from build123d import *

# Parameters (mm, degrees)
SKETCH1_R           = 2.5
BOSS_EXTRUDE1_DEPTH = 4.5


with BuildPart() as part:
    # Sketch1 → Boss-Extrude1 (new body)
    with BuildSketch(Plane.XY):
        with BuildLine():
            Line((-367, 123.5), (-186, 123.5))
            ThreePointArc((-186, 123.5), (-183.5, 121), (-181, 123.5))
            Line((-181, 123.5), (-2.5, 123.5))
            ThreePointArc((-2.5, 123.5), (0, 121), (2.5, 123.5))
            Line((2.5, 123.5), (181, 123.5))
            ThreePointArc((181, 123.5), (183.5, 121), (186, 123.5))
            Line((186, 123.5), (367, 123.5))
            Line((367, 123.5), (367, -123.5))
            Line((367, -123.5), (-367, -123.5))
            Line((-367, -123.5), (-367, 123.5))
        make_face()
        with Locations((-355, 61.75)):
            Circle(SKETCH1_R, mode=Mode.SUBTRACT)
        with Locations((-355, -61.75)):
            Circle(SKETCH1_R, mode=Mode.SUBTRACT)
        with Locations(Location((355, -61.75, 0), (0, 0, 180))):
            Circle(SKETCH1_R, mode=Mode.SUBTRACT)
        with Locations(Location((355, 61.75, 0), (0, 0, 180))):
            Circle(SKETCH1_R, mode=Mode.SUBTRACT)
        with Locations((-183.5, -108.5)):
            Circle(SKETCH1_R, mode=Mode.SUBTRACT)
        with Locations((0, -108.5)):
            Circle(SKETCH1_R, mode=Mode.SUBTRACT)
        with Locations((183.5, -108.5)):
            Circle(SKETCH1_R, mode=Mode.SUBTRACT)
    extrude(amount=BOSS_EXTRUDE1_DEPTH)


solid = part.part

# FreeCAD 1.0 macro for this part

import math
import FreeCAD as App
import Part
import Sketcher
Q = App.Units.Quantity

doc = App.newDocument("Part")
body = doc.addObject("PartDesign::Body", "Body")

# Sketch on XY plane
sketch1 = body.newObject("Sketcher::SketchObject", "Sketch")
sketch1.AttachmentSupport = (doc.getObject("XY_Plane"), [""])
sketch1.MapMode = "FlatFace"
sketch1.addGeometry([
    Part.LineSegment(App.Vector(-186, 123.5, 0), App.Vector(-367, 123.5, 0)),  # 0
    Part.LineSegment(App.Vector(-367, 123.5, 0), App.Vector(-367, -123.5, 0)),  # 1
    Part.LineSegment(App.Vector(-367, -123.5, 0), App.Vector(367, -123.5, 0)),  # 2
    Part.LineSegment(App.Vector(367, -123.5, 0), App.Vector(367, 123.5, 0)),  # 3
    Part.LineSegment(App.Vector(367, 123.5, 0), App.Vector(186, 123.5, 0)),  # 4
    Part.ArcOfCircle(Part.Circle(App.Vector(183.5, 123.5, 0), App.Vector(0, 0, 1), 2.5), math.radians(180), math.radians(360)),  # 5
    Part.LineSegment(App.Vector(181, 123.5, 0), App.Vector(2.5, 123.5, 0)),  # 6
    Part.ArcOfCircle(Part.Circle(App.Vector(0, 123.5, 0), App.Vector(0, 0, 1), 2.5), math.radians(180), math.radians(360)),  # 7
    Part.LineSegment(App.Vector(-2.5, 123.5, 0), App.Vector(-181, 123.5, 0)),  # 8
    Part.ArcOfCircle(Part.Circle(App.Vector(-183.5, 123.5, 0), App.Vector(0, 0, 1), 2.5), math.radians(180), math.radians(360)),  # 9
    Part.Circle(App.Vector(183.5, -108.5, 0), App.Vector(0, 0, 1), 2.5),  # 10
    Part.Circle(App.Vector(355, -61.8, 0), App.Vector(0, 0, 1), 2.5),  # 11
    Part.Circle(App.Vector(0, -108.5, 0), App.Vector(0, 0, 1), 2.5),  # 12
    Part.Circle(App.Vector(-183.5, -108.5, 0), App.Vector(0, 0, 1), 2.5),  # 13
    Part.Circle(App.Vector(-355, -61.8, 0), App.Vector(0, 0, 1), 2.5),  # 14
    Part.Circle(App.Vector(355, 61.8, 0), App.Vector(0, 0, 1), 2.5),  # 15
    Part.Circle(App.Vector(-355, 61.8, 0), App.Vector(0, 0, 1), 2.5),  # 16
], False)
sketch1.addConstraint([
    Sketcher.Constraint("Coincident", 0, 2, 1, 1),
    Sketcher.Constraint("Coincident", 1, 2, 2, 1),
    Sketcher.Constraint("Coincident", 2, 2, 3, 1),
    Sketcher.Constraint("Coincident", 3, 2, 4, 1),
    Sketcher.Constraint("Coincident", 4, 2, 5, 2),
    Sketcher.Constraint("Coincident", 5, 1, 6, 1),
    Sketcher.Constraint("Coincident", 6, 2, 7, 2),
    Sketcher.Constraint("Coincident", 7, 1, 8, 1),
    Sketcher.Constraint("Coincident", 8, 2, 9, 2),
    Sketcher.Constraint("Coincident", 9, 1, 0, 1),
    Sketcher.Constraint("Horizontal", 0),
    Sketcher.Constraint("Vertical", 1),
    Sketcher.Constraint("Horizontal", 2),
    Sketcher.Constraint("Vertical", 3),
    Sketcher.Constraint("Horizontal", 4),
    Sketcher.Constraint("Horizontal", 6),
    Sketcher.Constraint("Horizontal", 8),
    Sketcher.Constraint("Equal", 5, 7),
    Sketcher.Constraint("Equal", 7, 9),
    Sketcher.Constraint("Equal", 9, 10),
    Sketcher.Constraint("Equal", 10, 11),
    Sketcher.Constraint("Equal", 11, 12),
    Sketcher.Constraint("Equal", 12, 13),
    Sketcher.Constraint("Equal", 13, 14),
    Sketcher.Constraint("Equal", 14, 15),
    Sketcher.Constraint("Equal", 15, 16),
    Sketcher.Constraint("Symmetric", 14, 3, 15, 3, -1, 1),
    Sketcher.Constraint("Symmetric", 11, 3, 16, 3, -1, 1),
    Sketcher.Constraint("Symmetric", 0, 2, 2, 2, -1, 1),
    Sketcher.Constraint("Symmetric", 5, 3, 9, 3, -2),
    Sketcher.Constraint("Symmetric", 10, 3, 13, 3, -2),
    Sketcher.Constraint("Symmetric", 11, 3, 14, 3, -2),
    Sketcher.Constraint("Symmetric", 6, 2, 7, 1, -2),
    Sketcher.Constraint("PointOnObject", 12, 3, -2),
    Sketcher.Constraint("Horizontal", 5, 3, 7, 3),
    Sketcher.Constraint("Horizontal", 10, 3, 12, 3),
    Sketcher.Constraint("Horizontal", 9, 3, 0, 2),
    Sketcher.Constraint("Horizontal", 0, 2, 3, 2),
    Sketcher.Constraint("Horizontal", 4, 2, 5, 1),
    Sketcher.Constraint("Vertical", 5, 3, 10, 3),
    Sketcher.Constraint("Diameter", 10, Q("5 mm")),
    Sketcher.Constraint("DistanceX", 0, 2, 0, 1, Q("181 mm")),
    Sketcher.Constraint("DistanceX", 2, 1, 2, 2, Q("734 mm")),
    Sketcher.Constraint("DistanceY", 1, 2, 1, 1, Q("247 mm")),
    Sketcher.Constraint("DistanceX", -1, 1, 11, 3, Q("355 mm")),
    Sketcher.Constraint("DistanceY", 10, 3, 5, 3, Q("232 mm")),
    Sketcher.Constraint("DistanceY", 11, 3, 15, 3, Q("123.5 mm")),
])
pad1 = body.newObject("PartDesign::Pad", "Pad")
pad1.Profile = sketch1
pad1.Length = 4.5

doc.recompute()
